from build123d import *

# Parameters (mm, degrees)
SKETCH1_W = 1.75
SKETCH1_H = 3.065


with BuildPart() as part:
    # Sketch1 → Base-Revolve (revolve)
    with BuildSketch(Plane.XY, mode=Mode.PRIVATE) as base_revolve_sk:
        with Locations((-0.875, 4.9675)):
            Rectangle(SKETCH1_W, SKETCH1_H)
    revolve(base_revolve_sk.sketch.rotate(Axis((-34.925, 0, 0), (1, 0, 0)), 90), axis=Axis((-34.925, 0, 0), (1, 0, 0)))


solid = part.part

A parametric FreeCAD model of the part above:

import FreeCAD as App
import Part
import Sketcher
Q = App.Units.Quantity


def add_polygon(sketch, points):
    """Adds a closed chain of lines whose ends are joined by coincident constraints."""
    first, n = sketch.GeometryCount, len(points)
    for a, b in zip(points, points[1:] + points[:1]):
        sketch.addGeometry(Part.LineSegment(App.Vector(*a, 0), App.Vector(*b, 0)), False)
    for i in range(n):
        sketch.addConstraint(Sketcher.Constraint("Coincident", first + i, 2, first + (i + 1) % n, 1))

doc = App.newDocument("Part")
body = doc.addObject("PartDesign::Body", "Body")

sketch1 = body.newObject("Sketcher::SketchObject", "Sketch")
sketch1.AttachmentSupport = (doc.getObject("XY_Plane"), [""])
sketch1.MapMode = "FlatFace"
add_polygon(sketch1, [(-1.8, 6.5), (-1.8, 3.4), (0, 3.4), (0, 6.5)])
sketch1.addConstraint(Sketcher.Constraint("Vertical", 0))
sketch1.addConstraint(Sketcher.Constraint("Horizontal", 1))
sketch1.addConstraint(Sketcher.Constraint("Vertical", 2))
sketch1.addConstraint(Sketcher.Constraint("Horizontal", 3))
sketch1.addConstraint(Sketcher.Constraint("PointOnObject", 1, 2, -2))
sketch1.addConstraint(Sketcher.Constraint("DistanceX", 1, 1, 1, 2, Q("1.75 mm")))
sketch1.addConstraint(Sketcher.Constraint("DistanceY", -1, 1, 2, 2, Q("6.5 mm")))
sketch1.addConstraint(Sketcher.Constraint("DistanceY", 0, 2, 0, 1, Q("3.065 mm")))
revolution = body.newObject("PartDesign::Revolution", "Revolution")
revolution.Profile = sketch1
revolution.ReferenceAxis = (sketch1, ["H_Axis"])
revolution.Angle = 360

doc.recompute()
